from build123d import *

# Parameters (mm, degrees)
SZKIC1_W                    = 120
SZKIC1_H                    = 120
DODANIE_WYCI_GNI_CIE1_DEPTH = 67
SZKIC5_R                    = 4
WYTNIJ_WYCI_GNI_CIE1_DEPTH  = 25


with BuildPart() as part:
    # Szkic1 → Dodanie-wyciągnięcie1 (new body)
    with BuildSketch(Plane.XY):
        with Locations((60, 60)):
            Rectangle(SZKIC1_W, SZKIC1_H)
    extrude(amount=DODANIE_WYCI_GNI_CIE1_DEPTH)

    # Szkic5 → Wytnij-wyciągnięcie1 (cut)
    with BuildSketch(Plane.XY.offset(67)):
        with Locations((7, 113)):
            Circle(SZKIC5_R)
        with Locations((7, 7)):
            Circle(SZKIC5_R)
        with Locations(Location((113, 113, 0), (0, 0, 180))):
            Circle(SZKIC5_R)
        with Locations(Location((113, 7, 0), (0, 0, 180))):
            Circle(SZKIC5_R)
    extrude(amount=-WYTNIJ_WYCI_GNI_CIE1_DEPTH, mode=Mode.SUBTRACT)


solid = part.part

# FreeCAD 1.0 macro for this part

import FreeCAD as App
import Part
import Sketcher
from FreeCAD import Vector

doc = App.newDocument("Part")
body = doc.addObject("PartDesign::Body", "Body")

# Sketch on XY plane
sketch1 = body.newObject("Sketcher::SketchObject", "Sketch")
sketch1.AttachmentSupport = (doc.getObject("XY_Plane"), [""])
sketch1.MapMode = "FlatFace"
sketch1.addGeometry([
    Part.LineSegment(Vector(0, 120, 0), Vector(0, 0, 0)),
    Part.LineSegment(Vector(0, 0, 0), Vector(120, 0, 0)),
    Part.LineSegment(Vector(120, 0, 0), Vector(120, 120, 0)),
    Part.LineSegment(Vector(120, 120, 0), Vector(0, 120, 0)),
], False)
sketch1.addConstraint([
    Sketcher.Constraint("Coincident", 0, 2, 1, 1),
    Sketcher.Constraint("Coincident", 1, 2, 2, 1),
    Sketcher.Constraint("Coincident", 2, 2, 3, 1),
    Sketcher.Constraint("Coincident", 3, 2, 0, 1),
    Sketcher.Constraint("Vertical", 0),
    Sketcher.Constraint("Horizontal", 1),
    Sketcher.Constraint("Vertical", 2),
    Sketcher.Constraint("Horizontal", 3),
    Sketcher.Constraint("Coincident", 0, 2, -1, 1),
    Sketcher.Constraint("Equal", 3, 0),
    Sketcher.Constraint("DistanceX", 1, 1, 1, 2, 120.0),
])
pad1 = body.newObject("PartDesign::Pad", "Pad")
pad1.Profile = sketch1
pad1.Length = 67

# Sketch on XY plane
sketch2 = body.newObject("Sketcher::SketchObject", "Sketch001")
sketch2.AttachmentSupport = (doc.getObject("XY_Plane"), [""])
sketch2.MapMode = "FlatFace"
sketch2.AttachmentOffset = App.Placement(Vector(0, 0, 67), App.Rotation())
sketch2.addGeometry([
    Part.Circle(Vector(7, 113, 0), Vector(0, 0, 1), 4),
    Part.Circle(Vector(7, 7, 0), Vector(0, 0, 1), 4),
    Part.Circle(Vector(113, 113, 0), Vector(0, 0, 1), 4),
    Part.Circle(Vector(113, 7, 0), Vector(0, 0, 1), 4),
], False)
sketch2.addConstraint([
    Sketcher.Constraint("Equal", 0, 1),
    Sketcher.Constraint("Equal", 1, 2),
    Sketcher.Constraint("Equal", 2, 3),
    Sketcher.Constraint("Horizontal", 0, 3, 2, 3),
    Sketcher.Constraint("Horizontal", 1, 3, 3, 3),
    Sketcher.Constraint("Vertical", 0, 3, 1, 3),
    Sketcher.Constraint("Vertical", 2, 3, 3, 3),
    Sketcher.Constraint("Diameter", 0, 8.0),
    Sketcher.Constraint("DistanceX", -1, 1, 0, 3, 7.0),
    Sketcher.Constraint("DistanceY", -1, 1, 0, 3, 113.0),
    Sketcher.Constraint("DistanceY", -1, 1, 1, 3, 7.0),
    Sketcher.Constraint("DistanceX", -1, 1, 2, 3, 113.0),
])
pocket1 = body.newObject("PartDesign::Pocket", "Pocket")
pocket1.Profile = sketch2
pocket1.Length = 25

doc.recompute()
